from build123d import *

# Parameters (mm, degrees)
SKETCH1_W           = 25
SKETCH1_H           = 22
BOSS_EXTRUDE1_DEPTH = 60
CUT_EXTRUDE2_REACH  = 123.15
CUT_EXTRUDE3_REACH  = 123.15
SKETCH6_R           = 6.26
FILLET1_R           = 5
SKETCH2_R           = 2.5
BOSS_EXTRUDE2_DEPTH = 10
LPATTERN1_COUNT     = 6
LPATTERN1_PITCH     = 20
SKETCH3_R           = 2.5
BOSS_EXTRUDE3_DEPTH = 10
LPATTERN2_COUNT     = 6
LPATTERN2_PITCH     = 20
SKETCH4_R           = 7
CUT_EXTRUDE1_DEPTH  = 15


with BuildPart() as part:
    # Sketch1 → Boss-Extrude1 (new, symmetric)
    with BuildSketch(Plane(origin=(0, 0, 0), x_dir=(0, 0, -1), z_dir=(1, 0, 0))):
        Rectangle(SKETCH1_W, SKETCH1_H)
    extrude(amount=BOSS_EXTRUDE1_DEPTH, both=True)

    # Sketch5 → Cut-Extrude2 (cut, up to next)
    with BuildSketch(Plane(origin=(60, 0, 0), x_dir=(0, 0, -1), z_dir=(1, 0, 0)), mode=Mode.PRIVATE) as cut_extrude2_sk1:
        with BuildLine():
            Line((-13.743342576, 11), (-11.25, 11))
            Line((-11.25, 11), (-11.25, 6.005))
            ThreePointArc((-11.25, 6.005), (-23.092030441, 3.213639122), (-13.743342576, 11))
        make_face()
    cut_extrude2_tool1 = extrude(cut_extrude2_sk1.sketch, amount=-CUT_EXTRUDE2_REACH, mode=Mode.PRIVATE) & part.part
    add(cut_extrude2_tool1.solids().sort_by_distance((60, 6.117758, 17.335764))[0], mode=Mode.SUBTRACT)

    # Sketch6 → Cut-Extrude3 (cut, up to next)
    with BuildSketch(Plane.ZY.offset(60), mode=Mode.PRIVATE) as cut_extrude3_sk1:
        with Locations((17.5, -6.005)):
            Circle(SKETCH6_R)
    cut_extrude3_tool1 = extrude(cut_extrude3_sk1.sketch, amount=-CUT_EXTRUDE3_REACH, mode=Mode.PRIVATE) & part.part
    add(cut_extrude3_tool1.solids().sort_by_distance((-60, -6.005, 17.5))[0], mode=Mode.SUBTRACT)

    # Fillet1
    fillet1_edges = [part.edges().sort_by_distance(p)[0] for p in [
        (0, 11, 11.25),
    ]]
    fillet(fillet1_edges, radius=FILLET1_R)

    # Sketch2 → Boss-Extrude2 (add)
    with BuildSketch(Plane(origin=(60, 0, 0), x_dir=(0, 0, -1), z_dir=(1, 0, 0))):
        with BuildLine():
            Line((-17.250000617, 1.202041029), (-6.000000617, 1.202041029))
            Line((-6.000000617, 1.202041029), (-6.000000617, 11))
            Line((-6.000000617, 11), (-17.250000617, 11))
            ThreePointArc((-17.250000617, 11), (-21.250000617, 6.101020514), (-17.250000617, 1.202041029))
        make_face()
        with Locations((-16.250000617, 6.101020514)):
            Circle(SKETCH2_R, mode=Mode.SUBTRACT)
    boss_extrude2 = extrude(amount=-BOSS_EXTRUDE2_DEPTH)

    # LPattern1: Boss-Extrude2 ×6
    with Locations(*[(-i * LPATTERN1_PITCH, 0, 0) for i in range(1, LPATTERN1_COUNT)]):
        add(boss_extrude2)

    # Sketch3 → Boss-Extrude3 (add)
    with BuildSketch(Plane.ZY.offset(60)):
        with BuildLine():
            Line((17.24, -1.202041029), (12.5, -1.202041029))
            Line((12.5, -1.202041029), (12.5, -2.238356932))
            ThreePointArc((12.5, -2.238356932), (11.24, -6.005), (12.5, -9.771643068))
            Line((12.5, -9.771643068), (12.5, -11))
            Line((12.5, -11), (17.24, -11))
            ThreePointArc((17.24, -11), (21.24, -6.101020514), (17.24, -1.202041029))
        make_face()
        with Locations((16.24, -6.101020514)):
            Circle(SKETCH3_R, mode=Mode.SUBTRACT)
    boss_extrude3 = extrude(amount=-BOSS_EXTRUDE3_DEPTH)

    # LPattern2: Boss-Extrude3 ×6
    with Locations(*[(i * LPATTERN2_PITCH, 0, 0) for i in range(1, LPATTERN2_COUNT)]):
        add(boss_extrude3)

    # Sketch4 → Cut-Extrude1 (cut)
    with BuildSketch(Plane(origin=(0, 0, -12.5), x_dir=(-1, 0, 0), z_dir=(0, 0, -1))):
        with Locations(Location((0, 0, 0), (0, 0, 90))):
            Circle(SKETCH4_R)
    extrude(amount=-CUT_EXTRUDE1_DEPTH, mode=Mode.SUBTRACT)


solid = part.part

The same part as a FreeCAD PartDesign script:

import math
import FreeCAD as App
import Part
import Sketcher
from FreeCAD import Vector
Q = App.Units.Quantity


def edges_at(feature, points):
    """Names of the edges that pass closest to the given points."""
    edges = feature.Shape.Edges
    near = lambda p: min(range(len(edges)), key=lambda i: edges[i].distToShape(Part.Vertex(*p))[0])
    return sorted({f"Edge{near(p) + 1}" for p in points})


def add_polygon(sketch, points):
    """Adds a closed chain of lines whose ends are joined by coincident constraints."""
    first, n = sketch.GeometryCount, len(points)
    for a, b in zip(points, points[1:] + points[:1]):
        sketch.addGeometry(Part.LineSegment(App.Vector(*a, 0), App.Vector(*b, 0)), False)
    for i in range(n):
        sketch.addConstraint(Sketcher.Constraint("Coincident", first + i, 2, first + (i + 1) % n, 1))

doc = App.newDocument("Part")
params = doc.addObject("Spreadsheet::Sheet", "Params")
for row, (alias, value) in enumerate([
    ("sketch1_width", "22 mm"),
    ("sketch1_height", "25 mm"),
    ("pad1_length", "120 mm"),
    ("sketch2_radius", "6.25 mm"),
    ("pocket1_length", "120 mm"),
    ("sketch3_diameter", "12.52 mm"),
    ("pocket2_length", "120 mm"),
    ("fillet_radius", "5 mm"),
    ("sketch4_diameter", "5 mm"),
    ("sketch4_radius", "5 mm"),
    ("sketch4_height", "11.25 mm"),
    ("pad2_length", "10 mm"),
    ("linearpattern_pitch", "20 mm"),
    ("sketch5_diameter", "5 mm"),
    ("sketch5_radius", "5 mm"),
    ("sketch5_radius2", "6.26 mm"),
    ("sketch5_height", "4.74 mm"),
    ("pad3_length", "10 mm"),
    ("linearpattern2_pitch", "20 mm"),
    ("sketch6_diameter", "14 mm"),
    ("pocket3_length", "15 mm"),
], start=1):
    params.set(f"A{row}", alias)
    params.set(f"B{row}", "=" + value)
    params.setAlias(f"B{row}", alias)

body = doc.addObject("PartDesign::Body", "Body")

sketch1 = body.newObject("Sketcher::SketchObject", "Sketch")
sketch1.AttachmentSupport = (doc.getObject("YZ_Plane"), [""])
sketch1.MapMode = "FlatFace"
add_polygon(sketch1, [(11, 12.5), (-11, 12.5), (-11, -12.5), (11, -12.5)])
sketch1.addConstraint([
    Sketcher.Constraint("Horizontal", 0),
    Sketcher.Constraint("Vertical", 1),
    Sketcher.Constraint("Horizontal", 2),
    Sketcher.Constraint("Vertical", 3),
    Sketcher.Constraint("Symmetric", 0, 2, 2, 2, -1, 1),
    Sketcher.Constraint("DistanceX", 0, 2, 0, 1, Q("22 mm")),
    Sketcher.Constraint("DistanceY", 1, 2, 1, 1, Q("25 mm")),
])
sketch1.setExpression("Constraints[9]", "Params.sketch1_width")
sketch1.setExpression("Constraints[10]", "Params.sketch1_height")
pad1 = body.newObject("PartDesign::Pad", "Pad")
pad1.Profile = sketch1
pad1.setExpression("Length", "Params.pad1_length")
pad1.Midplane = True

sketch2 = body.newObject("Sketcher::SketchObject", "Sketch001")
sketch2.AttachmentSupport = (doc.getObject("YZ_Plane"), [""])
sketch2.MapMode = "FlatFace"
sketch2.AttachmentOffset = App.Placement(Vector(0, 0, 60), App.Rotation())
sketch2.addGeometry([
    Part.LineSegment(Vector(11, 11.25, 0), Vector(11, 13.743343, 0)),
    Part.ArcOfCircle(Part.Circle(Vector(6.005, 17.5, 0), Vector(0, 0, 1), 6.25), math.radians(-36.946224), math.radians(270)),
    Part.LineSegment(Vector(6.005, 11.25, 0), Vector(11, 11.25, 0)),
], False)
sketch2.addConstraint([
    Sketcher.Constraint("Coincident", 0, 2, 1, 1),
    Sketcher.Constraint("Tangent", 1, 2, 2, 1),
    Sketcher.Constraint("Coincident", 2, 2, 0, 1),
    Sketcher.Constraint("Vertical", 0),
    Sketcher.Constraint("Horizontal", 2),
    Sketcher.Constraint("Radius", 1, Q("6.25 mm")),
    Sketcher.Constraint("DistanceX", -1, 1, 0, 2, Q("11 mm")),
    Sketcher.Constraint("DistanceY", -1, 1, 1, 3, Q("17.5 mm")),
    Sketcher.Constraint("DistanceX", 2, 1, 2, 2, Q("4.995 mm")),
])
sketch2.setExpression("Constraints[5]", "Params.sketch2_radius")
pocket1 = body.newObject("PartDesign::Pocket", "Pocket")
pocket1.Profile = sketch2
pocket1.setExpression("Length", "Params.pocket1_length")

sketch3 = body.newObject("Sketcher::SketchObject", "Sketch002")
sketch3.AttachmentSupport = (doc.getObject("YZ_Plane"), [""])
sketch3.MapMode = "FlatFace"
sketch3.AttachmentOffset = App.Placement(Vector(0, 0, -60), App.Rotation())
sketch3.addGeometry(Part.Circle(Vector(-6.005, 17.5, 0), Vector(0, 0, 1), 6.26), False)
sketch3.addConstraint([
    Sketcher.Constraint("Diameter", 0, Q("12.52 mm")),
    Sketcher.Constraint("DistanceY", -1, 1, 0, 3, Q("17.5 mm")),
    Sketcher.Constraint("DistanceX", 0, 3, -1, 1, Q("6.005 mm")),
])
sketch3.setExpression("Constraints[0]", "Params.sketch3_diameter")
pocket2 = body.newObject("PartDesign::Pocket", "Pocket001")
pocket2.Profile = sketch3
pocket2.setExpression("Length", "Params.pocket2_length")
pocket2.Reversed = True
doc.recompute()

fillet = body.newObject("PartDesign::Fillet", "Fillet")
fillet.Base = (pocket2, edges_at(pocket2, [(0, 11, 11.25)]))
fillet.setExpression("Radius", "Params.fillet_radius")

sketch4 = body.newObject("Sketcher::SketchObject", "Sketch003")
sketch4.AttachmentSupport = (doc.getObject("YZ_Plane"), [""])
sketch4.MapMode = "FlatFace"
sketch4.AttachmentOffset = App.Placement(Vector(0, 0, 60), App.Rotation())
sketch4.addGeometry([
    Part.LineSegment(Vector(1.202041, 17.250001, 0), Vector(1.202041, 6.000001, 0)),
    Part.LineSegment(Vector(1.202041, 6.000001, 0), Vector(11, 6.000001, 0)),
    Part.LineSegment(Vector(11, 6.000001, 0), Vector(11, 17.250001, 0)),
    Part.ArcOfCircle(Part.Circle(Vector(6.101021, 16.250001, 0), Vector(0, 0, 1), 5), math.radians(11.536959), math.radians(168.463041)),
    Part.Circle(Vector(6.101021, 16.250001, 0), Vector(0, 0, 1), 2.5),
], False)
sketch4.addConstraint([
    Sketcher.Constraint("Coincident", 0, 2, 1, 1),
    Sketcher.Constraint("Coincident", 1, 2, 2, 1),
    Sketcher.Constraint("Coincident", 2, 2, 3, 1),
    Sketcher.Constraint("Coincident", 3, 2, 0, 1),
    Sketcher.Constraint("Vertical", 0),
    Sketcher.Constraint("Horizontal", 1),
    Sketcher.Constraint("Vertical", 2),
    Sketcher.Constraint("Coincident", 4, 3, 3, 3),
    Sketcher.Constraint("Horizontal", 2, 2, 3, 2),
    Sketcher.Constraint("Diameter", 4, Q("5 mm")),
    Sketcher.Constraint("Radius", 3, Q("5 mm")),
    Sketcher.Constraint("DistanceY", -1, 1, 0, 2, Q("6.000001 mm")),
    Sketcher.Constraint("DistanceX", -1, 1, 1, 2, Q("11 mm")),
    Sketcher.Constraint("DistanceY", 3, 3, 2, 2, Q("1 mm")),
    Sketcher.Constraint("DistanceY", 0, 2, 0, 1, Q("11.25 mm")),
])
sketch4.setExpression("Constraints[9]", "Params.sketch4_diameter")
sketch4.setExpression("Constraints[10]", "Params.sketch4_radius")
sketch4.setExpression("Constraints[14]", "Params.sketch4_height")
pad2 = body.newObject("PartDesign::Pad", "Pad001")
pad2.Profile = sketch4
pad2.setExpression("Length", "Params.pad2_length")
pad2.Reversed = True
doc.recompute()

linearpattern = body.newObject("PartDesign::LinearPattern", "LinearPattern")
linearpattern.Originals = [pad2]
linearpattern.Direction = (doc.getObject("X_Axis"), [""])
linearpattern.Mode = "offset"
linearpattern.setExpression("Offset", "Params.linearpattern_pitch")
linearpattern.Occurrences = 6
linearpattern.Reversed = True
body.Tip = linearpattern

sketch5 = body.newObject("Sketcher::SketchObject", "Sketch004")
sketch5.AttachmentSupport = (doc.getObject("YZ_Plane"), [""])
sketch5.MapMode = "FlatFace"
sketch5.AttachmentOffset = App.Placement(Vector(0, 0, -60), App.Rotation())
sketch5.addGeometry([
    Part.LineSegment(Vector(-1.202041, 17.24, 0), Vector(-1.202041, 12.5, 0)),
    Part.LineSegment(Vector(-1.202041, 12.5, 0), Vector(-2.238357, 12.5, 0)),
    Part.ArcOfCircle(Part.Circle(Vector(-6.005, 17.5, 0), Vector(0, 0, 1), 6.26), math.radians(-126.991761), math.radians(-53.008239)),
    Part.LineSegment(Vector(-9.771643, 12.5, 0), Vector(-11, 12.5, 0)),
    Part.LineSegment(Vector(-11, 12.5, 0), Vector(-11, 17.24, 0)),
    Part.ArcOfCircle(Part.Circle(Vector(-6.101021, 16.24, 0), Vector(0, 0, 1), 5), math.radians(11.536959), math.radians(168.463041)),
    Part.Circle(Vector(-6.101021, 16.24, 0), Vector(0, 0, 1), 2.5),
], False)
sketch5.addConstraint([
    Sketcher.Constraint("Coincident", 0, 2, 1, 1),
    Sketcher.Constraint("Coincident", 1, 2, 2, 2),
    Sketcher.Constraint("Coincident", 2, 1, 3, 1),
    Sketcher.Constraint("Coincident", 3, 2, 4, 1),
    Sketcher.Constraint("Coincident", 4, 2, 5, 2),
    Sketcher.Constraint("Coincident", 5, 1, 0, 1),
    Sketcher.Constraint("Vertical", 0),
    Sketcher.Constraint("Horizontal", 1),
    Sketcher.Constraint("Horizontal", 3),
    Sketcher.Constraint("Vertical", 4),
    Sketcher.Constraint("Coincident", 6, 3, 5, 3),
    Sketcher.Constraint("Horizontal", 1, 2, 2, 1),
    Sketcher.Constraint("Horizontal", 4, 2, 5, 1),
    Sketcher.Constraint("Diameter", 6, Q("5 mm")),
    Sketcher.Constraint("Radius", 5, Q("5 mm")),
    Sketcher.Constraint("Radius", 2, Q("6.26 mm")),
    Sketcher.Constraint("DistanceX", 3, 2, -1, 1, Q("11 mm")),
    Sketcher.Constraint("DistanceY", 0, 2, 2, 3, Q("5 mm")),
    Sketcher.Constraint("DistanceY", 5, 3, 4, 2, Q("1 mm")),
    Sketcher.Constraint("DistanceY", 0, 2, 0, 1, Q("4.74 mm")),
    Sketcher.Constraint("DistanceY", -1, 1, 2, 3, Q("17.5 mm")),
    Sketcher.Constraint("DistanceX", 2, 3, -1, 1, Q("6.005 mm")),
])
sketch5.setExpression("Constraints[13]", "Params.sketch5_diameter")
sketch5.setExpression("Constraints[14]", "Params.sketch5_radius")
sketch5.setExpression("Constraints[15]", "Params.sketch5_radius2")
sketch5.setExpression("Constraints[19]", "Params.sketch5_height")
pad3 = body.newObject("PartDesign::Pad", "Pad002")
pad3.Profile = sketch5
pad3.setExpression("Length", "Params.pad3_length")
doc.recompute()

linearpattern2 = body.newObject("PartDesign::LinearPattern", "LinearPattern001")
linearpattern2.Originals = [pad3]
linearpattern2.Direction = (doc.getObject("X_Axis"), [""])
linearpattern2.Mode = "offset"
linearpattern2.setExpression("Offset", "Params.linearpattern2_pitch")
linearpattern2.Occurrences = 6
body.Tip = linearpattern2

sketch6 = body.newObject("Sketcher::SketchObject", "Sketch005")
sketch6.AttachmentSupport = (doc.getObject("XY_Plane"), [""])
sketch6.MapMode = "FlatFace"
sketch6.AttachmentOffset = App.Placement(Vector(0, 0, -12.5), App.Rotation())
sketch6.addGeometry(Part.Circle(Vector(0, 0, 0), Vector(0, 0, 1), 7), False)
sketch6.addConstraint([
    Sketcher.Constraint("Coincident", 0, 3, -1, 1),
    Sketcher.Constraint("Diameter", 0, Q("14 mm")),
])
sketch6.setExpression("Constraints[1]", "Params.sketch6_diameter")
pocket3 = body.newObject("PartDesign::Pocket", "Pocket002")
pocket3.Profile = sketch6
pocket3.setExpression("Length", "Params.pocket3_length")
pocket3.Reversed = True

doc.recompute()
